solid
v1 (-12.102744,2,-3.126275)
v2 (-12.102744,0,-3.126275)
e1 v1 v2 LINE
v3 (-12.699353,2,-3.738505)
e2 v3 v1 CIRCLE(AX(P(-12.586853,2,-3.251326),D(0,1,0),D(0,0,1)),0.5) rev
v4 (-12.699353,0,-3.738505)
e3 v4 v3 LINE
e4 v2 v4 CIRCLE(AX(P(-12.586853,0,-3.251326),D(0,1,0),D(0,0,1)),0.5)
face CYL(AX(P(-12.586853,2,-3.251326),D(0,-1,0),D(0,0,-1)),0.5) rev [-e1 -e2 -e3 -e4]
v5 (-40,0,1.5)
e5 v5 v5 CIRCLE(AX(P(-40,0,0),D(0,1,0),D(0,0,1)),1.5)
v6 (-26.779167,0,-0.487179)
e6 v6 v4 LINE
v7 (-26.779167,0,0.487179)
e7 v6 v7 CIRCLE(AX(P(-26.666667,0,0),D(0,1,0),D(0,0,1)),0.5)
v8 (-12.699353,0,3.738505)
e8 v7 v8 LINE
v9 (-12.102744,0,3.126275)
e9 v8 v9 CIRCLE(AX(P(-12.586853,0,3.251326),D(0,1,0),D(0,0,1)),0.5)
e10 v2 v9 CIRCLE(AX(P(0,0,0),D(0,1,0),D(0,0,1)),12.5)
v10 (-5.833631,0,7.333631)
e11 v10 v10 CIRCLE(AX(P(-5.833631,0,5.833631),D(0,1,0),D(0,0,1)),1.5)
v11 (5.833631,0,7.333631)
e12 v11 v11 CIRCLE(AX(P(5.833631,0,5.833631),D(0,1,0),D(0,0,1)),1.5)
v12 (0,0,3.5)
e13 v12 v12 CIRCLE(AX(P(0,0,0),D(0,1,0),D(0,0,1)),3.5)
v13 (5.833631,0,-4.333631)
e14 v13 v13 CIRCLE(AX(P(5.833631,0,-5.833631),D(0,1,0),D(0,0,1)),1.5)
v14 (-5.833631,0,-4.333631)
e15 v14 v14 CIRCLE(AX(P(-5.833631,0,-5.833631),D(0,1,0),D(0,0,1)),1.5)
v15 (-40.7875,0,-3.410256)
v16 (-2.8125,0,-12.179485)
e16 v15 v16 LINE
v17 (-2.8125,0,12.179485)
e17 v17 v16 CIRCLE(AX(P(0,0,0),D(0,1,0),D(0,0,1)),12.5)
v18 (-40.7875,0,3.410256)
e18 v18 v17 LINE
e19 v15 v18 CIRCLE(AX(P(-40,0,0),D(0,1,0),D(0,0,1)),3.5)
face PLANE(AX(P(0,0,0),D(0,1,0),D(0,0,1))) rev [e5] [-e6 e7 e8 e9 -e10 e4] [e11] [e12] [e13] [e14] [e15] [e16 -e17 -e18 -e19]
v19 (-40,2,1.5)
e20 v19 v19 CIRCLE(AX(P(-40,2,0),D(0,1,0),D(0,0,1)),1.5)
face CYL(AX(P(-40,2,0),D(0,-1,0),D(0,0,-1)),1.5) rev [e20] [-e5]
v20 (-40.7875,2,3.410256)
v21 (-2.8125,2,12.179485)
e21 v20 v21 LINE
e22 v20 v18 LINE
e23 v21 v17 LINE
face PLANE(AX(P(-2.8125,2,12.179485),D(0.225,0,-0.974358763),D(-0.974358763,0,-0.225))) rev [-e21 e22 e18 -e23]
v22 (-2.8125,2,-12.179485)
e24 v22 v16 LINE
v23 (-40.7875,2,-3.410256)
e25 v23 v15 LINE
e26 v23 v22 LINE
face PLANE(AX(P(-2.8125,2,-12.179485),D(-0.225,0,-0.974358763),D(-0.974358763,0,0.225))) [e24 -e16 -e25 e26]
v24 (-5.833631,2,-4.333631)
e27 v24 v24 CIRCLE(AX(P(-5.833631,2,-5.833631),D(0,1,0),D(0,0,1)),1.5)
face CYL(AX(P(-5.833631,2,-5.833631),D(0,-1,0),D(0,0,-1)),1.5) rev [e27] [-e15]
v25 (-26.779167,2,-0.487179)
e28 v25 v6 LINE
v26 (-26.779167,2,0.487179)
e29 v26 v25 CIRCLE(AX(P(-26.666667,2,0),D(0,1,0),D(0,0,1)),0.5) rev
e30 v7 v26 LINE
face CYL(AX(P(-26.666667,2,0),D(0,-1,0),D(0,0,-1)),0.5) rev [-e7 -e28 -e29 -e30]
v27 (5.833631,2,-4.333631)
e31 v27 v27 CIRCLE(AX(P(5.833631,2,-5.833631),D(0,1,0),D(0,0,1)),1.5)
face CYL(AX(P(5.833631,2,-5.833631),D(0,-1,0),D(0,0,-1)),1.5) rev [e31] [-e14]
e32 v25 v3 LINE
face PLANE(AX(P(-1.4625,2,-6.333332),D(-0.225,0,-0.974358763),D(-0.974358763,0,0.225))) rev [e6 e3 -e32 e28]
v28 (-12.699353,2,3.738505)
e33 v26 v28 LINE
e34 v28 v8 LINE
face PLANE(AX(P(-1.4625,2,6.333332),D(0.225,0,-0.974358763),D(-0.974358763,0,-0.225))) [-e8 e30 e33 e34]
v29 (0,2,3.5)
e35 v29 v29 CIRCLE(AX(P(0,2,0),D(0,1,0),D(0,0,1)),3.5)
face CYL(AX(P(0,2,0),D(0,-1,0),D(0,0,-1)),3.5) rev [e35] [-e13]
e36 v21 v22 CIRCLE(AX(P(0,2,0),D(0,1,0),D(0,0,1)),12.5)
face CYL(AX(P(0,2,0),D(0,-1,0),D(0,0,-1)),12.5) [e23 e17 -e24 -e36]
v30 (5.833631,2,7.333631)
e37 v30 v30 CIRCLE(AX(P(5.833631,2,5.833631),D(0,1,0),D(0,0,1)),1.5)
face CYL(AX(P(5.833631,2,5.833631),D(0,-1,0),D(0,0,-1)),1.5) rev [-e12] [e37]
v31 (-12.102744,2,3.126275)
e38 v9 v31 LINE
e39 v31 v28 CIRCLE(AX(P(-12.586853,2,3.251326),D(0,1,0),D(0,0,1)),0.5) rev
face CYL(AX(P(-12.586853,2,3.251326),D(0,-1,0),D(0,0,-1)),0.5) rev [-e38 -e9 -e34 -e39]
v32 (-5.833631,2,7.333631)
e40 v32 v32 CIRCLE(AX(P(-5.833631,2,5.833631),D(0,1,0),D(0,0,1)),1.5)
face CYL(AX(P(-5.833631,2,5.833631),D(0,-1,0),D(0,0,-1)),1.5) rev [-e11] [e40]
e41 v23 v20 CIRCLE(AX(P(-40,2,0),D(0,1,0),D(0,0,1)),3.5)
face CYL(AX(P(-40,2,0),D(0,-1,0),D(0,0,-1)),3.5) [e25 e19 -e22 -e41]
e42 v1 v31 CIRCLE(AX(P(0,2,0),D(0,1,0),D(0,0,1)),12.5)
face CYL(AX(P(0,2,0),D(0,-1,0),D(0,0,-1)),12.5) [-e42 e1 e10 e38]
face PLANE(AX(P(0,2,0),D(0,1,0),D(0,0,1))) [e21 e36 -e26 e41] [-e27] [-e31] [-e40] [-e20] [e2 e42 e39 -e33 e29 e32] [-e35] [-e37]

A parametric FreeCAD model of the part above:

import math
import FreeCAD as App
import Part
import Sketcher
from FreeCAD import Vector


def edges_at(feature, points):
    """Names of the edges that pass closest to the given points."""
    edges = feature.Shape.Edges
    near = lambda p: min(range(len(edges)), key=lambda i: edges[i].distToShape(Part.Vertex(*p))[0])
    return sorted({f"Edge{near(p) + 1}" for p in points})

doc = App.newDocument("Part")
body = doc.addObject("PartDesign::Body", "Body")

# Sketch on XZ plane
sketch1 = doc.addObject("Sketcher::SketchObject", "Sketch")
body.addObject(sketch1)
sketch1.AttachmentSupport = (doc.XZ_Plane, [""])
sketch1.MapMode = "FlatFace"
sketch1.addGeometry([
    Part.LineSegment(Vector(-2.8, -12.2, 0), Vector(-40.8, -3.4, 0)),  # 0
    Part.ArcOfCircle(Part.Circle(Vector(-40, 0, 0), Vector(0, 0, 1), 3.5), math.radians(103), math.radians(257)),  # 1
    Part.LineSegment(Vector(-40.8, 3.4, 0), Vector(-2.8, 12.2, 0)),  # 2
    Part.ArcOfCircle(Part.Circle(Vector(0, 0, 0), Vector(0, 0, 1), 12.5), math.radians(-103), math.radians(103)),  # 3
    Part.ArcOfCircle(Part.Circle(Vector(0, 0, 0), Vector(0, 0, 1), 12.5), math.radians(162), math.radians(198)),  # 4
    Part.LineSegment(Vector(-11.9, 3.9, 0), Vector(-28.9, 0, 0)),  # 5
    Part.LineSegment(Vector(-28.9, 0, 0), Vector(-11.9, -3.9, 0)),  # 6
    Part.Circle(Vector(-5.8, 5.8, 0), Vector(0, 0, 1), 1.5),  # 7
    Part.Circle(Vector(5.8, 5.8, 0), Vector(0, 0, 1), 1.5),  # 8
    Part.Circle(Vector(-40, 0, 0), Vector(0, 0, 1), 1.5),  # 9
    Part.Circle(Vector(0, 0, 0), Vector(0, 0, 1), 3.5),  # 10
    Part.Circle(Vector(-5.8, -5.8, 0), Vector(0, 0, 1), 1.5),  # 11
    Part.Circle(Vector(5.8, -5.8, 0), Vector(0, 0, 1), 1.5),  # 12
], False)
sketch1.addConstraint([
    Sketcher.Constraint("Tangent", 0, 2, 1, 2),
    Sketcher.Constraint("Tangent", 1, 1, 2, 1),
    Sketcher.Constraint("Tangent", 2, 2, 3, 2),
    Sketcher.Constraint("Tangent", 3, 1, 0, 1),
    Sketcher.Constraint("Coincident", 4, 1, 5, 1),
    Sketcher.Constraint("Coincident", 5, 2, 6, 1),
    Sketcher.Constraint("Coincident", 6, 2, 4, 2),
    Sketcher.Constraint("Coincident", 3, 3, -1, 1),
    Sketcher.Constraint("Coincident", 4, 3, -1, 1),
    Sketcher.Constraint("Coincident", 10, 3, -1, 1),
    Sketcher.Constraint("Coincident", 9, 3, 1, 3),
    Sketcher.Constraint("Equal", 3, 4),
    Sketcher.Constraint("Equal", 7, 8),
    Sketcher.Constraint("Equal", 8, 9),
    Sketcher.Constraint("Equal", 1, 10),
    Sketcher.Constraint("Equal", 9, 11),
    Sketcher.Constraint("Equal", 11, 12),
    Sketcher.Constraint("Symmetric", 8, 3, 11, 3, -1, 1),
    Sketcher.Constraint("Symmetric", 7, 3, 12, 3, -1, 1),
    Sketcher.Constraint("Symmetric", 7, 3, 8, 3, -2),
    Sketcher.Constraint("PointOnObject", 1, 3, -1),
    Sketcher.Constraint("PointOnObject", 5, 2, -1),
    Sketcher.Constraint("Parallel", 2, 5),
    Sketcher.Constraint("Parallel", 0, 6),
    Sketcher.Constraint("Diameter", 7, 3.0),
    Sketcher.Constraint("Diameter", 10, 7.0),
    Sketcher.Constraint("Radius", 3, 12.5),
    Sketcher.Constraint("DistanceX", 1, 3, -1, 1, 40.0),
    Sketcher.Constraint("DistanceX", 7, 3, -1, 1, 5.833631),
    Sketcher.Constraint("DistanceY", -1, 1, 7, 3, 5.833631),
    Sketcher.Constraint("DistanceY", -1, 1, 4, 1, 3.930989),
])
pad1 = doc.addObject("PartDesign::Pad", "Pad")
body.addObject(pad1)
pad1.Profile = sketch1
pad1.Length = 2
pad1.Reversed = True
doc.recompute()

fillet = doc.addObject("PartDesign::Fillet", "Fillet")
body.addObject(fillet)
fillet.Base = (pad1, edges_at(pad1, [(-11.866, 1, -3.931), (-28.889, 1, 0), (-11.866, 1, 3.931)]))
fillet.Radius = 0.5

doc.recompute()
